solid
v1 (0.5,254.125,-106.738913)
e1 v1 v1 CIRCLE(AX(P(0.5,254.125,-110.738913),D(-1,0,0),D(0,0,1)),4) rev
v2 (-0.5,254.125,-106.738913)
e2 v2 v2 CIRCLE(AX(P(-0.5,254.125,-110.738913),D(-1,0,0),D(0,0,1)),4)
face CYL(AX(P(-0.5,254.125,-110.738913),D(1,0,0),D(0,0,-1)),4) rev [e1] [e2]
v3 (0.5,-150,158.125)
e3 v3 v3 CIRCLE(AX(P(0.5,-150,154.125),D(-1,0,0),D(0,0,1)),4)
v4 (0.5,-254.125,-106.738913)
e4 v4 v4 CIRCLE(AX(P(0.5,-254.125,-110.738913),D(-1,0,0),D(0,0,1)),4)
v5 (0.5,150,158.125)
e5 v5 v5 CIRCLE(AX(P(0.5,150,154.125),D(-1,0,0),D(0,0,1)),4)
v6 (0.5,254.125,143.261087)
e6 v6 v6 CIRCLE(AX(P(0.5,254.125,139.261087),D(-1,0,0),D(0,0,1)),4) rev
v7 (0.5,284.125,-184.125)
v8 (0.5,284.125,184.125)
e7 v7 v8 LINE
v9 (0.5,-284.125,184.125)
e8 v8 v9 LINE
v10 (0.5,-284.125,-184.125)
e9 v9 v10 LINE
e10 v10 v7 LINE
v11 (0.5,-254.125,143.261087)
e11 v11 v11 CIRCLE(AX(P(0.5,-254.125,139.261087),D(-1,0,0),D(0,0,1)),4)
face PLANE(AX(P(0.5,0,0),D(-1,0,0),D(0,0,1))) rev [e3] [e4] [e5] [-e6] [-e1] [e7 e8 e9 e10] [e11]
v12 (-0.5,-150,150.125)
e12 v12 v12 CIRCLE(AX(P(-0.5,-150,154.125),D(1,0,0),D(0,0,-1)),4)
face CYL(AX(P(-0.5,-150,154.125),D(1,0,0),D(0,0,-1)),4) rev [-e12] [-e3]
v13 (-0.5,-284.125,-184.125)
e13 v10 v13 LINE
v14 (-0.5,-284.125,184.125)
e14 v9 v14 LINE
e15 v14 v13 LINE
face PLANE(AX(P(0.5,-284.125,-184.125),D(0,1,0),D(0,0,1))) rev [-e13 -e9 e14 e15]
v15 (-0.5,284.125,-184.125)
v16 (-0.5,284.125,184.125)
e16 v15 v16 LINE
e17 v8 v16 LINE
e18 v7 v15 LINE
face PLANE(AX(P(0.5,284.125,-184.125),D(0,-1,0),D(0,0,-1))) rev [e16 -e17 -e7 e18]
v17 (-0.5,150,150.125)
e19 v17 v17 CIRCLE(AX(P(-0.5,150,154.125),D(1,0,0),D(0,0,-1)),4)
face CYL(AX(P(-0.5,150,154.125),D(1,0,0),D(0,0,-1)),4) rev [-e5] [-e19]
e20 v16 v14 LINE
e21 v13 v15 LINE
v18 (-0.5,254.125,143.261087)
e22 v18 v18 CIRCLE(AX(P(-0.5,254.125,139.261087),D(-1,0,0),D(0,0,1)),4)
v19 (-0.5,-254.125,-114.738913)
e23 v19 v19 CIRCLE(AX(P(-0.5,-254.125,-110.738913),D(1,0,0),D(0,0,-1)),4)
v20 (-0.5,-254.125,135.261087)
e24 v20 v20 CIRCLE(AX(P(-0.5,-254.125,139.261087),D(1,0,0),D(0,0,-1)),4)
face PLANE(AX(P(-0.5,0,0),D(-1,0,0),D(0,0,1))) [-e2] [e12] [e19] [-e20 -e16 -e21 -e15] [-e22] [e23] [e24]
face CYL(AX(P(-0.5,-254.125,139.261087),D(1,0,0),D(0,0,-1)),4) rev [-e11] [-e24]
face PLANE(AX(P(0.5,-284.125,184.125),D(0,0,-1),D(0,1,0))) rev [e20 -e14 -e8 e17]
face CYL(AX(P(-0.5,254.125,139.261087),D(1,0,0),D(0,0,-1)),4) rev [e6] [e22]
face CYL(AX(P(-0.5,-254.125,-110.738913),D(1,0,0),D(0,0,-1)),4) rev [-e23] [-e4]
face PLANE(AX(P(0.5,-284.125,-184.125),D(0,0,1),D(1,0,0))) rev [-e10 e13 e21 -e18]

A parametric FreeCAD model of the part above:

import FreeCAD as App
import Part
import Sketcher

V = App.Vector


def add_polygon(sketch, points):
    """Adds a closed chain of lines whose ends are joined by coincident constraints."""
    first, n = sketch.GeometryCount, len(points)
    for a, b in zip(points, points[1:] + points[:1]):
        sketch.addGeometry(Part.LineSegment(App.Vector(*a, 0), App.Vector(*b, 0)), False)
    for i in range(n):
        sketch.addConstraint(Sketcher.Constraint("Coincident", first + i, 2, first + (i + 1) % n, 1))

doc = App.newDocument("Part")
body = doc.addObject("PartDesign::Body", "Body")

sketch1 = body.newObject("Sketcher::SketchObject", "Sketch")
sketch1.AttachmentSupport = (doc.getObject("YZ_Plane"), [""])
sketch1.MapMode = "FlatFace"
add_polygon(sketch1, [(-284.125, 184.125), (-284.125, -184.125), (284.125, -184.125), (284.125, 184.125)])
sketch1.addConstraint([
    Sketcher.Constraint("Vertical", 0),
    Sketcher.Constraint("Horizontal", 1),
    Sketcher.Constraint("Vertical", 2),
    Sketcher.Constraint("Horizontal", 3),
    Sketcher.Constraint("Symmetric", 0, 2, 2, 2, -1, 1),
    Sketcher.Constraint("DistanceX", 1, 1, 1, 2, 568.25),
    Sketcher.Constraint("DistanceY", 0, 2, 0, 1, 368.25),
])
pad1 = body.newObject("PartDesign::Pad", "Pad")
pad1.Profile = sketch1
pad1.Length = 1
pad1.Midplane = True

sketch2 = body.newObject("Sketcher::SketchObject", "Sketch001")
sketch2.AttachmentSupport = (doc.getObject("YZ_Plane"), [""])
sketch2.MapMode = "FlatFace"
sketch2.AttachmentOffset = App.Placement(V(0, 0, 0.5), App.Rotation())
sketch2.addGeometry([
    Part.Circle(V(150, 154.125, 0), V(0, 0, 1), 4),
    Part.Circle(V(-150, 154.125, 0), V(0, 0, 1), 4),
    Part.Circle(V(-254.125, 139.261087, 0), V(0, 0, 1), 4),
    Part.Circle(V(-254.125, -110.738913, 0), V(0, 0, 1), 4),
    Part.Circle(V(254.125, -110.738913, 0), V(0, 0, 1), 4),
    Part.Circle(V(254.125, 139.261087, 0), V(0, 0, 1), 4),
], False)
sketch2.addConstraint([
    Sketcher.Constraint("Equal", 0, 1),
    Sketcher.Constraint("Equal", 1, 2),
    Sketcher.Constraint("Equal", 2, 3),
    Sketcher.Constraint("Equal", 3, 4),
    Sketcher.Constraint("Equal", 4, 5),
    Sketcher.Constraint("Symmetric", 0, 3, 1, 3, -2),
    Sketcher.Constraint("Symmetric", 3, 3, 4, 3, -2),
    Sketcher.Constraint("Symmetric", 2, 3, 5, 3, -2),
    Sketcher.Constraint("Vertical", 2, 3, 3, 3),
    Sketcher.Constraint("Diameter", 0, 8.0),
    Sketcher.Constraint("DistanceX", -1, 1, 0, 3, 150.0),
    Sketcher.Constraint("DistanceY", 3, 3, 2, 3, 250.0),
    Sketcher.Constraint("DistanceX", 3, 3, 4, 3, 508.25),
    Sketcher.Constraint("DistanceY", -1, 1, 0, 3, 154.125),
    Sketcher.Constraint("DistanceY", -1, 1, 2, 3, 139.261087),
])
pocket1 = body.newObject("PartDesign::Pocket", "Pocket")
pocket1.Profile = sketch2
pocket1.Type = "ThroughAll"
pocket1.Midplane = True

doc.recompute()
